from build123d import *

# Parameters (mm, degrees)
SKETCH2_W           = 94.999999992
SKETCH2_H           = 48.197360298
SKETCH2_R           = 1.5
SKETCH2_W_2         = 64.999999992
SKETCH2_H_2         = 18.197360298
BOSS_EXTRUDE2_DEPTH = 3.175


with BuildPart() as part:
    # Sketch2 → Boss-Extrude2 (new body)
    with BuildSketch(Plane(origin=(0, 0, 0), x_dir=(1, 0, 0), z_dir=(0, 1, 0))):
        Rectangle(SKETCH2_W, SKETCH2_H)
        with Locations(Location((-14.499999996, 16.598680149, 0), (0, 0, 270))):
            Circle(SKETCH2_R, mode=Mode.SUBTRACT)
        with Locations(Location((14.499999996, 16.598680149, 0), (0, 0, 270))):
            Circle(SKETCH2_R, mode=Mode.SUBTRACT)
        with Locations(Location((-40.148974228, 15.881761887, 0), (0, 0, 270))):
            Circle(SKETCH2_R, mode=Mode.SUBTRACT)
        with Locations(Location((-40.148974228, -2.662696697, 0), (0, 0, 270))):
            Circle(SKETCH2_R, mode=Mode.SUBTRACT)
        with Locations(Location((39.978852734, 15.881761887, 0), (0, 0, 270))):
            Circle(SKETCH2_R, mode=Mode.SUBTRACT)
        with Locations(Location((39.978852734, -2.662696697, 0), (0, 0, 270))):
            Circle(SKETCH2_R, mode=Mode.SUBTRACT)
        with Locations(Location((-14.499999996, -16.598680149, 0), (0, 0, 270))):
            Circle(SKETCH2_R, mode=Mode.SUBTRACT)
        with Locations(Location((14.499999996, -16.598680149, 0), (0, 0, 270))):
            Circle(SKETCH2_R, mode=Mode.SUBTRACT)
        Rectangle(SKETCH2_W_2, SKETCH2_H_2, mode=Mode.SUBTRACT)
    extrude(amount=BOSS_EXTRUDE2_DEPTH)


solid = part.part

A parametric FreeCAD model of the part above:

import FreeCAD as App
import Part
import Sketcher
Q = App.Units.Quantity


def add_polygon(sketch, points):
    """Adds a closed chain of lines whose ends are joined by coincident constraints."""
    first, n = sketch.GeometryCount, len(points)
    for a, b in zip(points, points[1:] + points[:1]):
        sketch.addGeometry(Part.LineSegment(App.Vector(*a, 0), App.Vector(*b, 0)), False)
    for i in range(n):
        sketch.addConstraint(Sketcher.Constraint("Coincident", first + i, 2, first + (i + 1) % n, 1))

doc = App.newDocument("Part")
params = doc.addObject("Spreadsheet::Sheet", "Params")
for row, (alias, value) in enumerate([
    ("sketch1_diameter", "3 mm"),
    ("sketch1_width", "95 mm"),
    ("sketch1_width2", "65 mm"),
    ("pad1_length", "3.175 mm"),
], start=1):
    params.set(f"A{row}", alias)
    params.set(f"B{row}", "=" + value)
    params.setAlias(f"B{row}", alias)

body = doc.addObject("PartDesign::Body", "Body")

sketch1 = body.newObject("Sketcher::SketchObject", "Sketch")
sketch1.AttachmentSupport = (doc.getObject("XZ_Plane"), [""])
sketch1.MapMode = "FlatFace"
add_polygon(sketch1, [(-47.5, -24.1), (-47.5, 24.1), (47.5, 24.1), (47.5, -24.1)])
sketch1.addGeometry(Part.Circle(App.Vector(-14.5, 16.6, 0), App.Vector(0, 0, 1), 1.5), False)
sketch1.addGeometry(Part.Circle(App.Vector(-40.1, 2.7, 0), App.Vector(0, 0, 1), 1.5), False)
sketch1.addGeometry(Part.Circle(App.Vector(14.5, 16.6, 0), App.Vector(0, 0, 1), 1.5), False)
sketch1.addGeometry(Part.Circle(App.Vector(40, 2.7, 0), App.Vector(0, 0, 1), 1.5), False)
sketch1.addGeometry(Part.Circle(App.Vector(-40.1, -15.9, 0), App.Vector(0, 0, 1), 1.5), False)
sketch1.addGeometry(Part.Circle(App.Vector(-14.5, -16.6, 0), App.Vector(0, 0, 1), 1.5), False)
add_polygon(sketch1, [(32.5, 9.1), (-32.5, 9.1), (-32.5, -9.1), (32.5, -9.1)])
sketch1.addGeometry(Part.Circle(App.Vector(14.5, -16.6, 0), App.Vector(0, 0, 1), 1.5), False)
sketch1.addGeometry(Part.Circle(App.Vector(40, -15.9, 0), App.Vector(0, 0, 1), 1.5), False)
sketch1.addConstraint([
    Sketcher.Constraint("Vertical", 0),
    Sketcher.Constraint("Horizontal", 1),
    Sketcher.Constraint("Vertical", 2),
    Sketcher.Constraint("Horizontal", 3),
    Sketcher.Constraint("Horizontal", 10),
    Sketcher.Constraint("Vertical", 11),
    Sketcher.Constraint("Horizontal", 12),
    Sketcher.Constraint("Vertical", 13),
    Sketcher.Constraint("Equal", 4, 5),
    Sketcher.Constraint("Equal", 5, 6),
    Sketcher.Constraint("Equal", 6, 7),
    Sketcher.Constraint("Equal", 7, 8),
    Sketcher.Constraint("Equal", 8, 9),
    Sketcher.Constraint("Equal", 9, 14),
    Sketcher.Constraint("Equal", 14, 15),
    Sketcher.Constraint("Symmetric", 6, 3, 9, 3, -1, 1),
    Sketcher.Constraint("Symmetric", 4, 3, 14, 3, -1, 1),
    Sketcher.Constraint("Symmetric", 0, 2, 2, 2, -1, 1),
    Sketcher.Constraint("Symmetric", 10, 2, 12, 2, -1, 1),
    Sketcher.Constraint("Symmetric", 4, 3, 6, 3, -2),
    Sketcher.Constraint("Horizontal", 5, 3, 7, 3),
    Sketcher.Constraint("Horizontal", 8, 3, 15, 3),
    Sketcher.Constraint("Vertical", 5, 3, 8, 3),
    Sketcher.Constraint("Vertical", 7, 3, 15, 3),
    Sketcher.Constraint("Diameter", 4, Q("3 mm")),
    Sketcher.Constraint("DistanceX", 1, 1, 1, 2, Q("95 mm")),
    Sketcher.Constraint("DistanceX", 10, 2, 10, 1, Q("65 mm")),
    Sketcher.Constraint("DistanceX", 4, 3, 6, 3, Q("29 mm")),
    Sketcher.Constraint("DistanceY", 10, 2, 0, 2, Q("15 mm")),
    Sketcher.Constraint("DistanceY", 4, 3, 0, 2, Q("7.5 mm")),
    Sketcher.Constraint("DistanceY", 0, 1, 0, 2, Q("48.19736 mm")),
    Sketcher.Constraint("DistanceY", 8, 3, -1, 1, Q("15.881762 mm")),
    Sketcher.Constraint("DistanceY", 8, 3, 5, 3, Q("18.544459 mm")),
    Sketcher.Constraint("DistanceX", 5, 3, -1, 1, Q("40.148974 mm")),
    Sketcher.Constraint("DistanceX", -1, 1, 7, 3, Q("39.978853 mm")),
])
sketch1.setExpression("Constraints[32]", "Params.sketch1_diameter")
sketch1.setExpression("Constraints[33]", "Params.sketch1_width")
sketch1.setExpression("Constraints[34]", "Params.sketch1_width2")
pad1 = body.newObject("PartDesign::Pad", "Pad")
pad1.Profile = sketch1
pad1.setExpression("Length", "Params.pad1_length")
pad1.Reversed = True

doc.recompute()
